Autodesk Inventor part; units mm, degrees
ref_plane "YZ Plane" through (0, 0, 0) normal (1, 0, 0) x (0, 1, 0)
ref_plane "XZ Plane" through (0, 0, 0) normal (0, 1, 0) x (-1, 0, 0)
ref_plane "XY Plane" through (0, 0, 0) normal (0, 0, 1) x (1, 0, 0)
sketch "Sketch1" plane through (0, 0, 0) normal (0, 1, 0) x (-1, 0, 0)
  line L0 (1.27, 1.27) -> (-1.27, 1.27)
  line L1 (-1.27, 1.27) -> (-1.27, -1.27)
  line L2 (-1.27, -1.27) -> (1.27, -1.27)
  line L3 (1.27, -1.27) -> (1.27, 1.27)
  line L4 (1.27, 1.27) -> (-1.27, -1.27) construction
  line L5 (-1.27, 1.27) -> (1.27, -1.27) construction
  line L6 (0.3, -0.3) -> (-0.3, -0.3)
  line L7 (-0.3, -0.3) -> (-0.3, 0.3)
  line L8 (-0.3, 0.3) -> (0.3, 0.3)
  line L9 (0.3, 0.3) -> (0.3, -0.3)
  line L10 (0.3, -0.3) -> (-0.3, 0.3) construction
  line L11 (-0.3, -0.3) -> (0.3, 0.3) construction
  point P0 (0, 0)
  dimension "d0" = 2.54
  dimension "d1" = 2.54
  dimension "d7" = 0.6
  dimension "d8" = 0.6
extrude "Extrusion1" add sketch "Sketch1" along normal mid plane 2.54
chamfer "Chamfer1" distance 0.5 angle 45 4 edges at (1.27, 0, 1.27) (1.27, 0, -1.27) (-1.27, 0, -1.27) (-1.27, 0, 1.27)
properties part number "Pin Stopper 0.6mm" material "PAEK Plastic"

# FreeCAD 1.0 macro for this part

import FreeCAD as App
import Part
import Sketcher

V = App.Vector


def edges_at(feature, points):
    """Names of the edges that pass closest to the given points."""
    edges = feature.Shape.Edges
    near = lambda p: min(range(len(edges)), key=lambda i: edges[i].distToShape(Part.Vertex(*p))[0])
    return sorted({f"Edge{near(p) + 1}" for p in points})


def add_polygon(sketch, points):
    """Adds a closed chain of lines whose ends are joined by coincident constraints."""
    first, n = sketch.GeometryCount, len(points)
    for a, b in zip(points, points[1:] + points[:1]):
        sketch.addGeometry(Part.LineSegment(App.Vector(*a, 0), App.Vector(*b, 0)), False)
    for i in range(n):
        sketch.addConstraint(Sketcher.Constraint("Coincident", first + i, 2, first + (i + 1) % n, 1))

doc = App.newDocument("Part")
body = doc.addObject("PartDesign::Body", "Body")

sketch1 = body.newObject("Sketcher::SketchObject", "Sketch")
sketch1.AttachmentSupport = (doc.getObject("XZ_Plane"), [""])
sketch1.MapMode = "FlatFace"
add_polygon(sketch1, [(-1.3, -1.3), (-1.3, 1.3), (1.3, 1.3), (1.3, -1.3)])
add_polygon(sketch1, [(-0.3, 0.3), (-0.3, -0.3), (0.3, -0.3), (0.3, 0.3)])
sketch1.addConstraint(Sketcher.Constraint("Vertical", 0))
sketch1.addConstraint(Sketcher.Constraint("Horizontal", 1))
sketch1.addConstraint(Sketcher.Constraint("Vertical", 2))
sketch1.addConstraint(Sketcher.Constraint("Horizontal", 3))
sketch1.addConstraint(Sketcher.Constraint("Vertical", 4))
sketch1.addConstraint(Sketcher.Constraint("Horizontal", 5))
sketch1.addConstraint(Sketcher.Constraint("Vertical", 6))
sketch1.addConstraint(Sketcher.Constraint("Horizontal", 7))
sketch1.addConstraint(Sketcher.Constraint("Symmetric", 0, 2, 2, 2, -1, 1))
sketch1.addConstraint(Sketcher.Constraint("Symmetric", 4, 2, 6, 2, -1, 1))
sketch1.addConstraint(Sketcher.Constraint("Equal", 3, 0))
sketch1.addConstraint(Sketcher.Constraint("Equal", 7, 4))
sketch1.addConstraint(Sketcher.Constraint("DistanceX", 5, 1, 5, 2, 0.6))
sketch1.addConstraint(Sketcher.Constraint("DistanceX", 1, 1, 1, 2, 2.54))
pad1 = body.newObject("PartDesign::Pad", "Pad")
pad1.Profile = sketch1
pad1.Length = 2.54
pad1.Midplane = True
doc.recompute()

chamfer = body.newObject("PartDesign::Chamfer", "Chamfer")
chamfer.Base = (pad1, edges_at(pad1, [
    (1.27, 0, 1.27),
    (1.27, 0, -1.27),
    (-1.27, 0, -1.27),
    (-1.27, 0, 1.27),
]))
chamfer.Size = 0.5

doc.recompute()
